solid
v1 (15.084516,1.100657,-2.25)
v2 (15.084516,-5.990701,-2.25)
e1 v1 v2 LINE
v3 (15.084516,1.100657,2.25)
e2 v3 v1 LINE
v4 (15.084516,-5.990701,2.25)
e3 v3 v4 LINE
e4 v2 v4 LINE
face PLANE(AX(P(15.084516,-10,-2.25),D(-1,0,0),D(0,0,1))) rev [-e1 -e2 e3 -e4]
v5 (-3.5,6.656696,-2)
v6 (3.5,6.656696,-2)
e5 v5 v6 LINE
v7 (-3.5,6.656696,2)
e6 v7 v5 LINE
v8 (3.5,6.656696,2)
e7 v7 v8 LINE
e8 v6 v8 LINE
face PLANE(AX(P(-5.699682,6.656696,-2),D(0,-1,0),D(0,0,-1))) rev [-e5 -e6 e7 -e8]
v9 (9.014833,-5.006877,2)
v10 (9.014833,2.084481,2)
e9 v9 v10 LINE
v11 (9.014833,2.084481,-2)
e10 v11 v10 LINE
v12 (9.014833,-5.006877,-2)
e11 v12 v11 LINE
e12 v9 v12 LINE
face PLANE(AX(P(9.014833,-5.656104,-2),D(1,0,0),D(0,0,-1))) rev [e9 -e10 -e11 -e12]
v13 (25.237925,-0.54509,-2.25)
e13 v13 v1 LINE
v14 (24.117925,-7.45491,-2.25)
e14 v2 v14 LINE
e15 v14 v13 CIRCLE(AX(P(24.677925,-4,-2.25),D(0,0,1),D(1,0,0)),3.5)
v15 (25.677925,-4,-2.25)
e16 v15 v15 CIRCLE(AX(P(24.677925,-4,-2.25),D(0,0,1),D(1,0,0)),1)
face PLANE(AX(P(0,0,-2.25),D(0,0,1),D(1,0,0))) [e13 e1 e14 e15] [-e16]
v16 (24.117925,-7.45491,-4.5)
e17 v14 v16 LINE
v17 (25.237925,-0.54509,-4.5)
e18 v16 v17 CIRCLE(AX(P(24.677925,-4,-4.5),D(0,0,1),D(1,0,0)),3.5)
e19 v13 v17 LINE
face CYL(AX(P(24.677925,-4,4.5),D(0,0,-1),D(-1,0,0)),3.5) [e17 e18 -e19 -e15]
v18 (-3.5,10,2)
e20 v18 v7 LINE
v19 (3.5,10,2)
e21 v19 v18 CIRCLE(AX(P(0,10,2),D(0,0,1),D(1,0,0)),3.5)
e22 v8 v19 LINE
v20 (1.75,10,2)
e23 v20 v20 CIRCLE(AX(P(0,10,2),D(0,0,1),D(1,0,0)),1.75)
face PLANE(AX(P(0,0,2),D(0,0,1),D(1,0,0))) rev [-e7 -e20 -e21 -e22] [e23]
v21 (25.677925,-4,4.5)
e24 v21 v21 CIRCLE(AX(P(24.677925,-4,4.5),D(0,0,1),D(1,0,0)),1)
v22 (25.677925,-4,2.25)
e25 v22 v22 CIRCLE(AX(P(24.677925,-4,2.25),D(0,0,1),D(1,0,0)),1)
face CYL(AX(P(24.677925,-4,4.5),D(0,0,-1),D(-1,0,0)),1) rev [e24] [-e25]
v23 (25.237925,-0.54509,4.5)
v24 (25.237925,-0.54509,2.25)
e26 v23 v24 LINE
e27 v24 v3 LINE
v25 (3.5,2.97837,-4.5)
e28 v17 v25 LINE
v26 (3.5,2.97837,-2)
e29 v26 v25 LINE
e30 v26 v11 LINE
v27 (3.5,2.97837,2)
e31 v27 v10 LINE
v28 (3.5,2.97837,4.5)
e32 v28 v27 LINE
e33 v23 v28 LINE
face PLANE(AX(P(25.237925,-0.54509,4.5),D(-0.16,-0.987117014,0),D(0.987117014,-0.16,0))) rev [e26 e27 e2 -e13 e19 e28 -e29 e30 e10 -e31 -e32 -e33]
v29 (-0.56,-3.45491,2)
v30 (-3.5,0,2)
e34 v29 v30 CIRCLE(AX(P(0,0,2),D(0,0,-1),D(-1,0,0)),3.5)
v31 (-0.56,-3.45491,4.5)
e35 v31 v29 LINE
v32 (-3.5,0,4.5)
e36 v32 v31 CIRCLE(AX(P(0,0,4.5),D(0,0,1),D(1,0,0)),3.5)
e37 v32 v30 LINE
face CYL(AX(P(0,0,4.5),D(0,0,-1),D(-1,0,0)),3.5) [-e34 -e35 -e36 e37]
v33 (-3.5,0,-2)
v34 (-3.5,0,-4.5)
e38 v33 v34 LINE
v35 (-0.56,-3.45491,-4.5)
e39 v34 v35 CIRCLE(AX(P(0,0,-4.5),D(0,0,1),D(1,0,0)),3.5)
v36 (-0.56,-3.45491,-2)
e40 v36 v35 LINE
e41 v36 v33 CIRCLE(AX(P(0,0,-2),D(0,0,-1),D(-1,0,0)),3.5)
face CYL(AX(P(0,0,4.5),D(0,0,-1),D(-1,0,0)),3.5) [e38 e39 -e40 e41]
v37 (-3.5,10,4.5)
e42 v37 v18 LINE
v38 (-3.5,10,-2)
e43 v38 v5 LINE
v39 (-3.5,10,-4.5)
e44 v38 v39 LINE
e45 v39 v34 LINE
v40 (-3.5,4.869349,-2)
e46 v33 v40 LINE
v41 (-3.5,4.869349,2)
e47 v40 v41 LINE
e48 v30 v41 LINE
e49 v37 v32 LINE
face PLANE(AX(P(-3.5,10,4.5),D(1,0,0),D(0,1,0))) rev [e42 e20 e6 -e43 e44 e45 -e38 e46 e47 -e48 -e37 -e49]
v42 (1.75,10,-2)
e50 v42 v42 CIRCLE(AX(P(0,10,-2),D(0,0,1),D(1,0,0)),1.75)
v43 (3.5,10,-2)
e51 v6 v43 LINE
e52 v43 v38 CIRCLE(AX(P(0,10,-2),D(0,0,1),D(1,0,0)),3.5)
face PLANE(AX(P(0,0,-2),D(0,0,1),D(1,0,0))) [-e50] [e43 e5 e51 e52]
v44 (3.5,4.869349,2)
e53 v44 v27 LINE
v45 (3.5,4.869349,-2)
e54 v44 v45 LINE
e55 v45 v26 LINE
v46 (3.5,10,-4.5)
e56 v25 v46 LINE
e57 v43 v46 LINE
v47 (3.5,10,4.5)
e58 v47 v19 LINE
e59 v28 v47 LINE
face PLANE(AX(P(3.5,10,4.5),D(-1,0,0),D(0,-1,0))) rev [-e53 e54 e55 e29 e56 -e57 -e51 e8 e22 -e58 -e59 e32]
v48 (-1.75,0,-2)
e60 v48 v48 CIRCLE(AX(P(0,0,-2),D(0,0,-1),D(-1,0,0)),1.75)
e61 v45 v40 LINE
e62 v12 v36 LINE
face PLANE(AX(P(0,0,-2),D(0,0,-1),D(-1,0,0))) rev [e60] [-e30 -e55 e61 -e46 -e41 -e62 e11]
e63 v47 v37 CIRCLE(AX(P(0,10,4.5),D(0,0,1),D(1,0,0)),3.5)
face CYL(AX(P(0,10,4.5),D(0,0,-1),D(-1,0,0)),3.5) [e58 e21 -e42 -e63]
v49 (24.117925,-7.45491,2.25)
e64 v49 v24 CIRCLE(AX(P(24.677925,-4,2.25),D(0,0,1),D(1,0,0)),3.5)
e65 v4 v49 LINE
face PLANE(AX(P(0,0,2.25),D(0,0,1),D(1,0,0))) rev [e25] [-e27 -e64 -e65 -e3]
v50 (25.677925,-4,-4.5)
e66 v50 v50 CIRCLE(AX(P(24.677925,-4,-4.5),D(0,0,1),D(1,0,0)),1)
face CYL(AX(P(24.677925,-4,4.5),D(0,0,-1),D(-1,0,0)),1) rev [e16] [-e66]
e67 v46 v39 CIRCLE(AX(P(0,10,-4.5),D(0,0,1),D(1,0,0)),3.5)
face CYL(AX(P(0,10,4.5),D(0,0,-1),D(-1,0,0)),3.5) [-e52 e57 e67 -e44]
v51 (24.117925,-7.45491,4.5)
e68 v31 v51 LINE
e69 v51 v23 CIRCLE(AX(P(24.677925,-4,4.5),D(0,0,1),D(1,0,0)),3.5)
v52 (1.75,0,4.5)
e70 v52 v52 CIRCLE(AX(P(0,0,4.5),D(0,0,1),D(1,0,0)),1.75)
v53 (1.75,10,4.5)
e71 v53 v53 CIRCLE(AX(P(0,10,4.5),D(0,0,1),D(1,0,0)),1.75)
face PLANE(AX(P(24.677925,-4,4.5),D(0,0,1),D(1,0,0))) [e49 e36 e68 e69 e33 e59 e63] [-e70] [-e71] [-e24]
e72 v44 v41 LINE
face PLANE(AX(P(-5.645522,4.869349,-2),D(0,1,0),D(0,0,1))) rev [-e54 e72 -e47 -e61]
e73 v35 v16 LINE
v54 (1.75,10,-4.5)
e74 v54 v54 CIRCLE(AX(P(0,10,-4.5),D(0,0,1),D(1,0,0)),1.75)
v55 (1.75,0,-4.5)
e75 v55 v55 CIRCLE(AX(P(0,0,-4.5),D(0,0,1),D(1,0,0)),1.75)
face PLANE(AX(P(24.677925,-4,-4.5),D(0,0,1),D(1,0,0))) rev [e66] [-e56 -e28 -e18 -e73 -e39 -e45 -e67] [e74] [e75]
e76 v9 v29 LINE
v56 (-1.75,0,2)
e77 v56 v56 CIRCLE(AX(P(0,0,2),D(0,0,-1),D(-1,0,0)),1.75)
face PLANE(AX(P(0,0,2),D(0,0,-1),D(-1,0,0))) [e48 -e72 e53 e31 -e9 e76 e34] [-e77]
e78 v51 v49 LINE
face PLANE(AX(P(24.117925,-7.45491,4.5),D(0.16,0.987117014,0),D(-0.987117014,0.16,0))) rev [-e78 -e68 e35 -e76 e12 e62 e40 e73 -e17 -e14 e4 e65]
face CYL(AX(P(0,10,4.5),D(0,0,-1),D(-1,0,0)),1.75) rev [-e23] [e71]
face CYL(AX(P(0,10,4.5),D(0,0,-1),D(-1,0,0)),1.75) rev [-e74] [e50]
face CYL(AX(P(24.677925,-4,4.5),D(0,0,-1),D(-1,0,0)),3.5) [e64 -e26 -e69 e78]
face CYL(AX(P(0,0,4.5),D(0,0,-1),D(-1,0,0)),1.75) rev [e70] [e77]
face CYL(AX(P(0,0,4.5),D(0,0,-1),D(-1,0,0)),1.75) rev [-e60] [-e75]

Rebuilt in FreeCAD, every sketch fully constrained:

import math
import FreeCAD as App
import Part
import Sketcher

V = App.Vector
Q = App.Units.Quantity


def add_polygon(sketch, points):
    """Adds a closed chain of lines whose ends are joined by coincident constraints."""
    first, n = sketch.GeometryCount, len(points)
    for a, b in zip(points, points[1:] + points[:1]):
        sketch.addGeometry(Part.LineSegment(App.Vector(*a, 0), App.Vector(*b, 0)), False)
    for i in range(n):
        sketch.addConstraint(Sketcher.Constraint("Coincident", first + i, 2, first + (i + 1) % n, 1))

doc = App.newDocument("Part")
params = doc.addObject("Spreadsheet::Sheet", "Params")
for row, (alias, value) in enumerate([
    ("sketch1_diameter", "2 mm"),
    ("sketch1_diameter2", "3.5 mm"),
    ("sketch1_radius", "3.5 mm"),
    ("sketch1_height", "10 mm"),
    ("sketch1_length", "25 mm"),
    ("pad1_length", "9 mm"),
    ("pocket1_length", "4 mm"),
    ("sketch3_height", "12 mm"),
    ("pocket2_length", "4.5 mm"),
], start=1):
    params.set(f"A{row}", alias)
    params.set(f"B{row}", "=" + value)
    params.setAlias(f"B{row}", alias)

body = doc.addObject("PartDesign::Body", "Body")

sketch1 = body.newObject("Sketcher::SketchObject", "Sketch")
sketch1.AttachmentSupport = (doc.getObject("XY_Plane"), [""])
sketch1.MapMode = "FlatFace"
sketch1.addGeometry(Part.LineSegment(V(-0.56, -3.45491, 0), V(24.117925, -7.45491, 0)), False)
sketch1.addGeometry(Part.ArcOfCircle(Part.Circle(V(24.677925, -4, 0), V(0, 0, 1), 3.5), math.radians(-99.206896), math.radians(80.793104)), False)
sketch1.addGeometry(Part.LineSegment(V(25.237925, -0.54509, 0), V(3.5, 2.97837, 0)), False)
sketch1.addGeometry(Part.LineSegment(V(3.5, 2.97837, 0), V(3.5, 10, 0)), False)
sketch1.addGeometry(Part.ArcOfCircle(Part.Circle(V(0, 10, 0), V(0, 0, 1), 3.5), math.radians(0), math.radians(180)), False)
sketch1.addGeometry(Part.LineSegment(V(-3.5, 10, 0), V(-3.5, 0, 0)), False)
sketch1.addGeometry(Part.ArcOfCircle(Part.Circle(V(0, 0, 0), V(0, 0, 1), 3.5), math.radians(-180), math.radians(-99.206896)), False)
sketch1.addGeometry(Part.Circle(V(24.677925, -4, 0), V(0, 0, 1), 1), False)
sketch1.addGeometry(Part.Circle(V(0, 0, 0), V(0, 0, 1), 1.75), False)
sketch1.addGeometry(Part.Circle(V(0, 10, 0), V(0, 0, 1), 1.75), False)
sketch1.addConstraint(Sketcher.Constraint("Tangent", 0, 2, 1, 1))
sketch1.addConstraint(Sketcher.Constraint("Tangent", 1, 2, 2, 1))
sketch1.addConstraint(Sketcher.Constraint("Coincident", 2, 2, 3, 1))
sketch1.addConstraint(Sketcher.Constraint("Tangent", 3, 2, 4, 1))
sketch1.addConstraint(Sketcher.Constraint("Tangent", 4, 2, 5, 1))
sketch1.addConstraint(Sketcher.Constraint("Tangent", 5, 2, 6, 1))
sketch1.addConstraint(Sketcher.Constraint("Tangent", 6, 2, 0, 1))
sketch1.addConstraint(Sketcher.Constraint("Vertical", 3))
sketch1.addConstraint(Sketcher.Constraint("Vertical", 5))
sketch1.addConstraint(Sketcher.Constraint("Coincident", 6, 3, -1, 1))
sketch1.addConstraint(Sketcher.Constraint("Coincident", 8, 3, -1, 1))
sketch1.addConstraint(Sketcher.Constraint("Coincident", 7, 3, 1, 3))
sketch1.addConstraint(Sketcher.Constraint("Coincident", 9, 3, 4, 3))
sketch1.addConstraint(Sketcher.Constraint("Equal", 1, 4))
sketch1.addConstraint(Sketcher.Constraint("Equal", 4, 6))
sketch1.addConstraint(Sketcher.Constraint("Equal", 8, 9))
sketch1.addConstraint(Sketcher.Constraint("Parallel", 0, 2))
sketch1.addConstraint(Sketcher.Constraint("Diameter", 7, Q("2 mm")))
sketch1.addConstraint(Sketcher.Constraint("Diameter", 8, Q("3.5 mm")))
sketch1.addConstraint(Sketcher.Constraint("Radius", 1, Q("3.5 mm")))
sketch1.addConstraint(Sketcher.Constraint("DistanceY", 5, 2, 5, 1, Q("10 mm")))
sketch1.addConstraint(Sketcher.Constraint("Distance", 0, Q("25 mm")))
sketch1.addConstraint(Sketcher.Constraint("DistanceY", 1, 3, -1, 1, Q("4 mm")))
sketch1.setExpression("Constraints[17]", "Params.sketch1_diameter")
sketch1.setExpression("Constraints[18]", "Params.sketch1_diameter2")
sketch1.setExpression("Constraints[19]", "Params.sketch1_radius")
sketch1.setExpression("Constraints[20]", "Params.sketch1_height")
sketch1.setExpression("Constraints[21]", "Params.sketch1_length")
pad1 = body.newObject("PartDesign::Pad", "Pad")
pad1.Profile = sketch1
pad1.setExpression("Length", "Params.pad1_length")
pad1.Midplane = True

sketch2 = body.newObject("Sketcher::SketchObject", "Sketch001")
sketch2.AttachmentSupport = (doc.getObject("XY_Plane"), [""])
sketch2.MapMode = "FlatFace"
add_polygon(sketch2, [(-5.699682, 16.469864), (-5.699682, 6.656696), (3.5, 6.656696), (3.5, 16.469864)])
add_polygon(sketch2, [(-5.645522, 4.869349), (-5.645522, -5.656104), (9.014833, -5.656104), (9.014833, 4.869349)])
sketch2.addConstraint(Sketcher.Constraint("Vertical", 0))
sketch2.addConstraint(Sketcher.Constraint("Horizontal", 1))
sketch2.addConstraint(Sketcher.Constraint("Vertical", 2))
sketch2.addConstraint(Sketcher.Constraint("Horizontal", 3))
sketch2.addConstraint(Sketcher.Constraint("Vertical", 4))
sketch2.addConstraint(Sketcher.Constraint("Horizontal", 5))
sketch2.addConstraint(Sketcher.Constraint("Vertical", 6))
sketch2.addConstraint(Sketcher.Constraint("Horizontal", 7))
sketch2.addConstraint(Sketcher.Constraint("DistanceX", -1, 1, 1, 2, Q("3.5 mm")))
sketch2.addConstraint(Sketcher.Constraint("DistanceY", 4, 2, 0, 2, Q("12.3128 mm")))
sketch2.addConstraint(Sketcher.Constraint("DistanceX", 1, 1, 1, 2, Q("9.199682 mm")))
sketch2.addConstraint(Sketcher.Constraint("DistanceX", 5, 1, 5, 2, Q("14.660355 mm")))
sketch2.addConstraint(Sketcher.Constraint("DistanceY", 0, 2, 0, 1, Q("9.813168 mm")))
sketch2.addConstraint(Sketcher.Constraint("DistanceY", 4, 2, 4, 1, Q("10.525454 mm")))
sketch2.addConstraint(Sketcher.Constraint("DistanceX", 4, 2, -1, 1, Q("5.645522 mm")))
sketch2.addConstraint(Sketcher.Constraint("DistanceY", -1, 1, 6, 2, Q("4.869349 mm")))
pocket1 = body.newObject("PartDesign::Pocket", "Pocket")
pocket1.Profile = sketch2
pocket1.setExpression("Length", "Params.pocket1_length")
pocket1.Midplane = True

sketch3 = body.newObject("Sketcher::SketchObject", "Sketch002")
sketch3.AttachmentSupport = (doc.getObject("XY_Plane"), [""])
sketch3.MapMode = "FlatFace"
add_polygon(sketch3, [(15.084516, 2), (15.084516, -10), (34.271335, -10), (34.271335, 2)])
sketch3.addConstraint(Sketcher.Constraint("Vertical", 0))
sketch3.addConstraint(Sketcher.Constraint("Horizontal", 1))
sketch3.addConstraint(Sketcher.Constraint("Vertical", 2))
sketch3.addConstraint(Sketcher.Constraint("Horizontal", 3))
sketch3.addConstraint(Sketcher.Constraint("DistanceY", 0, 2, 0, 1, Q("12 mm")))
sketch3.addConstraint(Sketcher.Constraint("DistanceY", 0, 2, -1, 1, Q("10 mm")))
sketch3.addConstraint(Sketcher.Constraint("DistanceX", 1, 1, 1, 2, Q("19.186819 mm")))
sketch3.addConstraint(Sketcher.Constraint("DistanceX", -1, 1, 0, 2, Q("15.084516 mm")))
sketch3.setExpression("Constraints[8]", "Params.sketch3_height")
pocket2 = body.newObject("PartDesign::Pocket", "Pocket001")
pocket2.Profile = sketch3
pocket2.setExpression("Length", "Params.pocket2_length")
pocket2.Midplane = True

doc.recompute()
